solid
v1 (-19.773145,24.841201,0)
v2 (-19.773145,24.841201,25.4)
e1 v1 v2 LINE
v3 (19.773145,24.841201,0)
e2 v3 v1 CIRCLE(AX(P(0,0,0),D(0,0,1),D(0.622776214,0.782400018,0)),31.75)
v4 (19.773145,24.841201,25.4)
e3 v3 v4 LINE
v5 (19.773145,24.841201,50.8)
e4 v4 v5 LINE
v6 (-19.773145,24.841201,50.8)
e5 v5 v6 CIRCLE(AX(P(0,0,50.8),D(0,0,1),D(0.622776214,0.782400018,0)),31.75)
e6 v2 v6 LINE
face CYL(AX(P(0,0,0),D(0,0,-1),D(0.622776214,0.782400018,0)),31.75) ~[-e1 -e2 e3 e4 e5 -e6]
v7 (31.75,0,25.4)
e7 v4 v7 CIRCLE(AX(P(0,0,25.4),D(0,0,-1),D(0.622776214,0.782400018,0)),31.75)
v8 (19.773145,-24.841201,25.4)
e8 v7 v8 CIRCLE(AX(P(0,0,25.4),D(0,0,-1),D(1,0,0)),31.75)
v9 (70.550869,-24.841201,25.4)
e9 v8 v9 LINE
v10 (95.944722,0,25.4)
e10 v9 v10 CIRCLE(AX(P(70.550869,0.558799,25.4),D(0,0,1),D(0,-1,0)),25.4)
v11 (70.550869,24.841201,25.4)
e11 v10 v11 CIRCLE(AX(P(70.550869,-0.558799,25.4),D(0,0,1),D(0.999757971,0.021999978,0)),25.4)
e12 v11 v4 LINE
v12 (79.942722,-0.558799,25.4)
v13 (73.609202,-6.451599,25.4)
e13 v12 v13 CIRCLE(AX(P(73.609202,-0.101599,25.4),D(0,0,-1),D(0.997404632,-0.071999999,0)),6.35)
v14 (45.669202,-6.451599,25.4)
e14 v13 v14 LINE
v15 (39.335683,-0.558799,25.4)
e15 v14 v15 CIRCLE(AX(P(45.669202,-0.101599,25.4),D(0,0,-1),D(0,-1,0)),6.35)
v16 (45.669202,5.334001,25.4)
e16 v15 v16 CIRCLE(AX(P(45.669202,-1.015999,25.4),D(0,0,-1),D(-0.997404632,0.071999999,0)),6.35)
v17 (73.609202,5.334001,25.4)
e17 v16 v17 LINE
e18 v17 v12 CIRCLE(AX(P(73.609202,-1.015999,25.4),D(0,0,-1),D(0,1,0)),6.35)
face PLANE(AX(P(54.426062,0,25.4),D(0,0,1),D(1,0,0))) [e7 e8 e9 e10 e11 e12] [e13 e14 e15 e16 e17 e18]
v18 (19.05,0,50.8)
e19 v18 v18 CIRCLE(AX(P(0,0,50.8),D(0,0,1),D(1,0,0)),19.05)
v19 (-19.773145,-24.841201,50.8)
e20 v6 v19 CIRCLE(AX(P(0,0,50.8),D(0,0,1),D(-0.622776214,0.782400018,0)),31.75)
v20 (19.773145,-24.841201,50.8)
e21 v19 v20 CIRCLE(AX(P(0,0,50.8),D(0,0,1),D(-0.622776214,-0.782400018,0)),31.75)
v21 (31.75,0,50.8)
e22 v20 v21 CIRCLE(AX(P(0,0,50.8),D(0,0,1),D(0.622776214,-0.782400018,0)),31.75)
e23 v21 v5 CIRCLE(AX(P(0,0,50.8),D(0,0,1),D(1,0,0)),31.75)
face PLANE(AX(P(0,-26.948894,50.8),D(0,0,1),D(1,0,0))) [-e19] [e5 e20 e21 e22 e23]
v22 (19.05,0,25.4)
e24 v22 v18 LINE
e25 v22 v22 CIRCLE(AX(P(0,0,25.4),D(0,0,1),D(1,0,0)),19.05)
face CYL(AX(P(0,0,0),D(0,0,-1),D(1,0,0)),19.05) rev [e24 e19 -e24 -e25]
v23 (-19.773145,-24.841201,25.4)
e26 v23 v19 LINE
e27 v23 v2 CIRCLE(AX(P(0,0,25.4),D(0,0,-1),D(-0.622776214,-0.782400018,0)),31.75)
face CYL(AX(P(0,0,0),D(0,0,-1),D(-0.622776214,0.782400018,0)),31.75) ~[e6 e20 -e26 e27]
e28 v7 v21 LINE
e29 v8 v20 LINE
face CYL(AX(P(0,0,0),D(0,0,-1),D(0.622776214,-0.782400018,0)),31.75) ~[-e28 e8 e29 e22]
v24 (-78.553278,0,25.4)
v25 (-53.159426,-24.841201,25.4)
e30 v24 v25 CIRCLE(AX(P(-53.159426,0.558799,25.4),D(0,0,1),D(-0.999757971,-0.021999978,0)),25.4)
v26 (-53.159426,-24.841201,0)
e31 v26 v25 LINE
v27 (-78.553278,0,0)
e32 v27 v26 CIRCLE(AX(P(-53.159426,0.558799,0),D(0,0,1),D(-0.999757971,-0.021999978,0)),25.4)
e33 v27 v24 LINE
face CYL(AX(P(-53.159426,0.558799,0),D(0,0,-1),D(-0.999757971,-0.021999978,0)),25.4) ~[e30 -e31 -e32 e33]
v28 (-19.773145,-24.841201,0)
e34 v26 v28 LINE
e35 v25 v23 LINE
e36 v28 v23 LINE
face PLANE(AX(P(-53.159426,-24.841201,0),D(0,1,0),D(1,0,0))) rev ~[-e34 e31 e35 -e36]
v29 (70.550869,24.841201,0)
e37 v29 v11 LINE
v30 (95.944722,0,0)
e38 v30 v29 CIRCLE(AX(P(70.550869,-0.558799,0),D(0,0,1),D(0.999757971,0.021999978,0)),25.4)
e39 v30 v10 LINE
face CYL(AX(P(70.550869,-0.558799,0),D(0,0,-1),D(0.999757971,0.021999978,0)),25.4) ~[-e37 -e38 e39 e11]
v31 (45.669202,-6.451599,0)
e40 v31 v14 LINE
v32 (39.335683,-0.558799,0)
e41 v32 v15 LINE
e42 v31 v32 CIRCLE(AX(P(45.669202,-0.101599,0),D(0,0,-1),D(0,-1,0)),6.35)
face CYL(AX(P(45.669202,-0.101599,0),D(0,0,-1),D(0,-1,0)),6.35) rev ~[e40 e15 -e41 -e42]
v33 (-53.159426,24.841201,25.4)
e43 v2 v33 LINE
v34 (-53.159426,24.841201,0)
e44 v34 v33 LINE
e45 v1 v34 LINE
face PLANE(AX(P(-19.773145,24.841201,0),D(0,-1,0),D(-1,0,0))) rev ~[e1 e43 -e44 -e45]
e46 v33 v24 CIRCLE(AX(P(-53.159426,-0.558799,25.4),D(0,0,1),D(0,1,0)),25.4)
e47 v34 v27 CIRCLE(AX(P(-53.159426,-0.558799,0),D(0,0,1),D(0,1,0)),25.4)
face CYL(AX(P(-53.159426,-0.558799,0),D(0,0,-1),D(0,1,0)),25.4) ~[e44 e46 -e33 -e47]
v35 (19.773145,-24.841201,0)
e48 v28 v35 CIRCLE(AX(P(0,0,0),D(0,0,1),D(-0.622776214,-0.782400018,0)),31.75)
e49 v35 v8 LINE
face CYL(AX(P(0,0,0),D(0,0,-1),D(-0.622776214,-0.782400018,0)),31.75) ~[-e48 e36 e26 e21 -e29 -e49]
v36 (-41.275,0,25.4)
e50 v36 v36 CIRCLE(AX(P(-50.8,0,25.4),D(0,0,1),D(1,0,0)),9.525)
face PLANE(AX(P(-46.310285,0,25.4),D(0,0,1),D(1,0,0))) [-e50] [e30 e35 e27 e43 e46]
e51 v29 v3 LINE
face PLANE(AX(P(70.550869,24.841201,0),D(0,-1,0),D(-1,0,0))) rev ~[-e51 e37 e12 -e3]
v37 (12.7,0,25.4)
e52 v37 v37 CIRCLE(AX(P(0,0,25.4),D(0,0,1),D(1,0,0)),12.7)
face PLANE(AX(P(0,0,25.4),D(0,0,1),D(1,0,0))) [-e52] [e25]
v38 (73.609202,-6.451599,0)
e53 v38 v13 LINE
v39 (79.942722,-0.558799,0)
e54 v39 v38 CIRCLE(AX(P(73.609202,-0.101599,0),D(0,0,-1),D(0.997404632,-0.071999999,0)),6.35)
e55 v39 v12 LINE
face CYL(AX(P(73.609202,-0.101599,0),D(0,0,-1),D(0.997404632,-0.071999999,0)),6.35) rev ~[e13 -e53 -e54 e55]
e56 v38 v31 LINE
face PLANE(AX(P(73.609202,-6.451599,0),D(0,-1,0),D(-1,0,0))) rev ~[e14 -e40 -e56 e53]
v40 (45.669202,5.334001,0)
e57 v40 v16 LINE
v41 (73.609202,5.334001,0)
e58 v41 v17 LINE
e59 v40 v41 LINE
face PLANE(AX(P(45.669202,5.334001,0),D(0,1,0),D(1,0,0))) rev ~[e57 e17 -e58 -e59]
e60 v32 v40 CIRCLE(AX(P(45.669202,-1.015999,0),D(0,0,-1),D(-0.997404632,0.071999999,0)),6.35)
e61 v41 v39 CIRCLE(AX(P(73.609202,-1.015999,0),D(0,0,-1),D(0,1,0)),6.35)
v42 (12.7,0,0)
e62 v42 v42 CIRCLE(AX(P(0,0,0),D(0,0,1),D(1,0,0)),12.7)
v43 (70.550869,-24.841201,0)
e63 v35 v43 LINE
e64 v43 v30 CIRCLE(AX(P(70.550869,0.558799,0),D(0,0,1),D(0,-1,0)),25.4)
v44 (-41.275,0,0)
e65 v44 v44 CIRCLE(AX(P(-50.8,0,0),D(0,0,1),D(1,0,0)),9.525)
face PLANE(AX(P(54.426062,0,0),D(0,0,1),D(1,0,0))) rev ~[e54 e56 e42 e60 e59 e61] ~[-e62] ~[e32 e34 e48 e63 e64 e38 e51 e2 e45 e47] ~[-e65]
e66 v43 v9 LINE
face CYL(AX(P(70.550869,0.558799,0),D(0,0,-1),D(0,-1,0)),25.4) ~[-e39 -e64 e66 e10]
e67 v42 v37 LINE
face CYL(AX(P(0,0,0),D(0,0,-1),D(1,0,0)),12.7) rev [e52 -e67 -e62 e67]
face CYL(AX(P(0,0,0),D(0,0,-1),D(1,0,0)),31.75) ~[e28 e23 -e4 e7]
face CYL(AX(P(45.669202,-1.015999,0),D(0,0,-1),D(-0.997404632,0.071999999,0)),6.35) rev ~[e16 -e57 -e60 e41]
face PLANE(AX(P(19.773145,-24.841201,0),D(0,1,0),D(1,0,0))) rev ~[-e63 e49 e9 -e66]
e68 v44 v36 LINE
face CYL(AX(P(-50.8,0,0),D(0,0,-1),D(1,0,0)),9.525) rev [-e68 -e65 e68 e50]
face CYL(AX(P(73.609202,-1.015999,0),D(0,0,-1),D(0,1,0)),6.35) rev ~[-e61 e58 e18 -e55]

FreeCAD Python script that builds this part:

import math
import FreeCAD as App
import Part
import Sketcher
Q = App.Units.Quantity

doc = App.newDocument("Part")
params = doc.addObject("Spreadsheet::Sheet", "Params")
for row, (alias, value) in enumerate([
    ("sketch1_radius", "1 in"),
    ("sketch1_diameter", "0.75 in"),
    ("sketch1_radius2", "1.25 in"),
    ("pad1_length", "1 in"),
    ("sketch2_diameter", "1.5 in"),
    ("sketch2_radius", "1.25 in"),
    ("pad2_length", "2 in"),
    ("sketch3_diameter", "1 in"),
    ("sketch3_radius", "1 in"),
    ("sketch3_diameter2", "1.5 in"),
    ("sketch3_radius2", "1.25 in"),
    ("sketch3_radius3", "0.25 in"),
    ("pad3_length", "1 in"),
], start=1):
    params.set(f"A{row}", alias)
    params.set(f"B{row}", "=" + value)
    params.setAlias(f"B{row}", alias)

body = doc.addObject("PartDesign::Body", "Body")

sketch1 = body.newObject("Sketcher::SketchObject", "Sketch")
sketch1.AttachmentSupport = (doc.getObject("XY_Plane"), [""])
sketch1.MapMode = "FlatFace"
sketch1.addGeometry([
    Part.ArcOfCircle(Part.Circle(App.Vector(0, 0, 0), App.Vector(0, 0, 1), 32), math.radians(129), math.radians(231)),
    Part.LineSegment(App.Vector(-20, 25, 0), App.Vector(-53, 25, 0)),
    Part.ArcOfCircle(Part.Circle(App.Vector(-53, -1, 0), App.Vector(0, 0, 1), 25), math.radians(90), math.radians(179)),
    Part.ArcOfCircle(Part.Circle(App.Vector(-53, 1, 0), App.Vector(0, 0, 1), 25), math.radians(-179), math.radians(-90)),
    Part.LineSegment(App.Vector(-53, -25, 0), App.Vector(-20, -25, 0)),
    Part.Circle(App.Vector(-51, 0, 0), App.Vector(0, 0, 1), 10),
], False)
sketch1.addConstraint([
    Sketcher.Constraint("Coincident", 0, 1, 1, 1),
    Sketcher.Constraint("Tangent", 1, 2, 2, 1),
    Sketcher.Constraint("Coincident", 2, 2, 3, 1),
    Sketcher.Constraint("Tangent", 3, 2, 4, 1),
    Sketcher.Constraint("Coincident", 4, 2, 0, 2),
    Sketcher.Constraint("Horizontal", 1),
    Sketcher.Constraint("Horizontal", 4),
    Sketcher.Constraint("Coincident", 0, 3, -1, 1),
    Sketcher.Constraint("Equal", 2, 3),
    Sketcher.Constraint("Symmetric", 2, 3, 3, 3, -1),
    Sketcher.Constraint("PointOnObject", 5, 3, -1),
    Sketcher.Constraint("Radius", 2, Q("1 in")),
    Sketcher.Constraint("Diameter", 5, Q("0.75 in")),
    Sketcher.Constraint("Radius", 0, Q("1.25 in")),
    Sketcher.Constraint("DistanceX", 5, 3, -1, 1, Q("2 in")),
    Sketcher.Constraint("DistanceY", 2, 3, -1, 1, Q("0.022 in")),
    Sketcher.Constraint("DistanceX", 1, 2, 1, 1, Q("33.386281 mm")),
])
sketch1.setExpression("Constraints[11]", "Params.sketch1_radius")
sketch1.setExpression("Constraints[12]", "Params.sketch1_diameter")
sketch1.setExpression("Constraints[13]", "Params.sketch1_radius2")
pad1 = body.newObject("PartDesign::Pad", "Pad")
pad1.Profile = sketch1
pad1.setExpression("Length", "Params.pad1_length")

sketch2 = body.newObject("Sketcher::SketchObject", "Sketch001")
sketch2.AttachmentSupport = (doc.getObject("XY_Plane"), [""])
sketch2.MapMode = "FlatFace"
sketch2.addGeometry([
    Part.ArcOfCircle(Part.Circle(App.Vector(0, 0, 0), App.Vector(0, 0, 1), 32), math.radians(-129), math.radians(-51)),
    Part.ArcOfCircle(Part.Circle(App.Vector(0, 0, 0), App.Vector(0, 0, 1), 32), math.radians(-51), math.radians(0)),
    Part.ArcOfCircle(Part.Circle(App.Vector(0, 0, 0), App.Vector(0, 0, 1), 32), math.radians(0), math.radians(51)),
    Part.ArcOfCircle(Part.Circle(App.Vector(0, 0, 0), App.Vector(0, 0, 1), 32), math.radians(51), math.radians(129)),
    Part.ArcOfCircle(Part.Circle(App.Vector(0, 0, 0), App.Vector(0, 0, 1), 32), math.radians(129), math.radians(231)),
    Part.Circle(App.Vector(0, 0, 0), App.Vector(0, 0, 1), 19),
], False)
sketch2.addConstraint([
    Sketcher.Constraint("Tangent", 0, 2, 1, 1),
    Sketcher.Constraint("Tangent", 1, 2, 2, 1),
    Sketcher.Constraint("Tangent", 2, 2, 3, 1),
    Sketcher.Constraint("Tangent", 3, 2, 4, 1),
    Sketcher.Constraint("Tangent", 4, 2, 0, 1),
    Sketcher.Constraint("Coincident", 0, 3, -1, 1),
    Sketcher.Constraint("Coincident", 2, 3, -1, 1),
    Sketcher.Constraint("Coincident", 5, 3, -1, 1),
    Sketcher.Constraint("PointOnObject", 1, 2, -1),
    Sketcher.Constraint("Horizontal", 2, 2, 3, 2),
    Sketcher.Constraint("Horizontal", 0, 2, 4, 2),
    Sketcher.Constraint("Vertical", 0, 2, 2, 2),
    Sketcher.Constraint("Diameter", 5, Q("1.5 in")),
    Sketcher.Constraint("Radius", 0, Q("1.25 in")),
    Sketcher.Constraint("DistanceY", 0, 2, -1, 1, Q("0.978 in")),
])
sketch2.setExpression("Constraints[12]", "Params.sketch2_diameter")
sketch2.setExpression("Constraints[13]", "Params.sketch2_radius")
pad2 = body.newObject("PartDesign::Pad", "Pad001")
pad2.Profile = sketch2
pad2.setExpression("Length", "Params.pad2_length")

sketch3 = body.newObject("Sketcher::SketchObject", "Sketch002")
sketch3.AttachmentSupport = (doc.getObject("XY_Plane"), [""])
sketch3.MapMode = "FlatFace"
sketch3.addGeometry([
    Part.ArcOfCircle(Part.Circle(App.Vector(0, 0, 0), App.Vector(0, 0, 1), 32), math.radians(0), math.radians(51)),
    Part.ArcOfCircle(Part.Circle(App.Vector(0, 0, 0), App.Vector(0, 0, 1), 32), math.radians(-51), math.radians(0)),
    Part.LineSegment(App.Vector(20, -25, 0), App.Vector(71, -25, 0)),
    Part.ArcOfCircle(Part.Circle(App.Vector(71, 1, 0), App.Vector(0, 0, 1), 25), math.radians(-90), math.radians(-1)),
    Part.ArcOfCircle(Part.Circle(App.Vector(71, -1, 0), App.Vector(0, 0, 1), 25), math.radians(1), math.radians(90)),
    Part.LineSegment(App.Vector(71, 25, 0), App.Vector(20, 25, 0)),
    Part.ArcOfCircle(Part.Circle(App.Vector(46, 0, 0), App.Vector(0, 0, 1), 6), math.radians(-176), math.radians(-90)),
    Part.ArcOfCircle(Part.Circle(App.Vector(46, -1, 0), App.Vector(0, 0, 1), 6), math.radians(90), math.radians(176)),
    Part.LineSegment(App.Vector(46, 5, 0), App.Vector(74, 5, 0)),
    Part.ArcOfCircle(Part.Circle(App.Vector(74, -1, 0), App.Vector(0, 0, 1), 6), math.radians(4), math.radians(90)),
    Part.ArcOfCircle(Part.Circle(App.Vector(74, 0, 0), App.Vector(0, 0, 1), 6), math.radians(-90), math.radians(-4)),
    Part.LineSegment(App.Vector(74, -6, 0), App.Vector(46, -6, 0)),
    Part.Circle(App.Vector(0, 0, 0), App.Vector(0, 0, 1), 19),
    Part.Circle(App.Vector(0, 0, 0), App.Vector(0, 0, 1), 13),
], False)
sketch3.addConstraint([
    Sketcher.Constraint("Tangent", 0, 1, 1, 2),
    Sketcher.Constraint("Coincident", 1, 1, 2, 1),
    Sketcher.Constraint("Tangent", 2, 2, 3, 1),
    Sketcher.Constraint("Coincident", 3, 2, 4, 1),
    Sketcher.Constraint("Tangent", 4, 2, 5, 1),
    Sketcher.Constraint("Coincident", 5, 2, 0, 2),
    Sketcher.Constraint("Coincident", 6, 1, 7, 2),
    Sketcher.Constraint("Tangent", 7, 1, 8, 1),
    Sketcher.Constraint("Tangent", 8, 2, 9, 2),
    Sketcher.Constraint("Coincident", 9, 1, 10, 2),
    Sketcher.Constraint("Tangent", 10, 1, 11, 1),
    Sketcher.Constraint("Tangent", 11, 2, 6, 2),
    Sketcher.Constraint("Horizontal", 2),
    Sketcher.Constraint("Horizontal", 5),
    Sketcher.Constraint("Horizontal", 8),
    Sketcher.Constraint("Horizontal", 11),
    Sketcher.Constraint("Coincident", 0, 3, -1, 1),
    Sketcher.Constraint("Coincident", 12, 3, -1, 1),
    Sketcher.Constraint("Coincident", 13, 3, -1, 1),
    Sketcher.Constraint("Equal", 0, 1),
    Sketcher.Constraint("Equal", 3, 4),
    Sketcher.Constraint("Equal", 6, 7),
    Sketcher.Constraint("Equal", 7, 9),
    Sketcher.Constraint("Equal", 9, 10),
    Sketcher.Constraint("Symmetric", 3, 3, 4, 3, -1),
    Sketcher.Constraint("PointOnObject", 0, 1, -1),
    Sketcher.Constraint("Horizontal", 4, 3, 6, 1),
    Sketcher.Constraint("Horizontal", 6, 1, 9, 1),
    Sketcher.Constraint("Vertical", 6, 3, 7, 3),
    Sketcher.Constraint("Diameter", 13, Q("1 in")),
    Sketcher.Constraint("Radius", 3, Q("1 in")),
    Sketcher.Constraint("Diameter", 12, Q("1.5 in")),
    Sketcher.Constraint("Radius", 0, Q("1.25 in")),
    Sketcher.Constraint("Radius", 6, Q("0.25 in")),
    Sketcher.Constraint("DistanceX", 8, 1, 8, 2, Q("1.1 in")),
    Sketcher.Constraint("DistanceY", 7, 3, -1, 1, Q("0.04 in")),
    Sketcher.Constraint("DistanceY", -1, 1, 3, 3, Q("0.022 in")),
    Sketcher.Constraint("DistanceX", -1, 1, 6, 3, Q("1.7980001 in")),
    Sketcher.Constraint("DistanceX", 2, 1, 2, 2, Q("50.777724 mm")),
])
sketch3.setExpression("Constraints[29]", "Params.sketch3_diameter")
sketch3.setExpression("Constraints[30]", "Params.sketch3_radius")
sketch3.setExpression("Constraints[31]", "Params.sketch3_diameter2")
sketch3.setExpression("Constraints[32]", "Params.sketch3_radius2")
sketch3.setExpression("Constraints[33]", "Params.sketch3_radius3")
pad3 = body.newObject("PartDesign::Pad", "Pad002")
pad3.Profile = sketch3
pad3.setExpression("Length", "Params.pad3_length")

doc.recompute()
